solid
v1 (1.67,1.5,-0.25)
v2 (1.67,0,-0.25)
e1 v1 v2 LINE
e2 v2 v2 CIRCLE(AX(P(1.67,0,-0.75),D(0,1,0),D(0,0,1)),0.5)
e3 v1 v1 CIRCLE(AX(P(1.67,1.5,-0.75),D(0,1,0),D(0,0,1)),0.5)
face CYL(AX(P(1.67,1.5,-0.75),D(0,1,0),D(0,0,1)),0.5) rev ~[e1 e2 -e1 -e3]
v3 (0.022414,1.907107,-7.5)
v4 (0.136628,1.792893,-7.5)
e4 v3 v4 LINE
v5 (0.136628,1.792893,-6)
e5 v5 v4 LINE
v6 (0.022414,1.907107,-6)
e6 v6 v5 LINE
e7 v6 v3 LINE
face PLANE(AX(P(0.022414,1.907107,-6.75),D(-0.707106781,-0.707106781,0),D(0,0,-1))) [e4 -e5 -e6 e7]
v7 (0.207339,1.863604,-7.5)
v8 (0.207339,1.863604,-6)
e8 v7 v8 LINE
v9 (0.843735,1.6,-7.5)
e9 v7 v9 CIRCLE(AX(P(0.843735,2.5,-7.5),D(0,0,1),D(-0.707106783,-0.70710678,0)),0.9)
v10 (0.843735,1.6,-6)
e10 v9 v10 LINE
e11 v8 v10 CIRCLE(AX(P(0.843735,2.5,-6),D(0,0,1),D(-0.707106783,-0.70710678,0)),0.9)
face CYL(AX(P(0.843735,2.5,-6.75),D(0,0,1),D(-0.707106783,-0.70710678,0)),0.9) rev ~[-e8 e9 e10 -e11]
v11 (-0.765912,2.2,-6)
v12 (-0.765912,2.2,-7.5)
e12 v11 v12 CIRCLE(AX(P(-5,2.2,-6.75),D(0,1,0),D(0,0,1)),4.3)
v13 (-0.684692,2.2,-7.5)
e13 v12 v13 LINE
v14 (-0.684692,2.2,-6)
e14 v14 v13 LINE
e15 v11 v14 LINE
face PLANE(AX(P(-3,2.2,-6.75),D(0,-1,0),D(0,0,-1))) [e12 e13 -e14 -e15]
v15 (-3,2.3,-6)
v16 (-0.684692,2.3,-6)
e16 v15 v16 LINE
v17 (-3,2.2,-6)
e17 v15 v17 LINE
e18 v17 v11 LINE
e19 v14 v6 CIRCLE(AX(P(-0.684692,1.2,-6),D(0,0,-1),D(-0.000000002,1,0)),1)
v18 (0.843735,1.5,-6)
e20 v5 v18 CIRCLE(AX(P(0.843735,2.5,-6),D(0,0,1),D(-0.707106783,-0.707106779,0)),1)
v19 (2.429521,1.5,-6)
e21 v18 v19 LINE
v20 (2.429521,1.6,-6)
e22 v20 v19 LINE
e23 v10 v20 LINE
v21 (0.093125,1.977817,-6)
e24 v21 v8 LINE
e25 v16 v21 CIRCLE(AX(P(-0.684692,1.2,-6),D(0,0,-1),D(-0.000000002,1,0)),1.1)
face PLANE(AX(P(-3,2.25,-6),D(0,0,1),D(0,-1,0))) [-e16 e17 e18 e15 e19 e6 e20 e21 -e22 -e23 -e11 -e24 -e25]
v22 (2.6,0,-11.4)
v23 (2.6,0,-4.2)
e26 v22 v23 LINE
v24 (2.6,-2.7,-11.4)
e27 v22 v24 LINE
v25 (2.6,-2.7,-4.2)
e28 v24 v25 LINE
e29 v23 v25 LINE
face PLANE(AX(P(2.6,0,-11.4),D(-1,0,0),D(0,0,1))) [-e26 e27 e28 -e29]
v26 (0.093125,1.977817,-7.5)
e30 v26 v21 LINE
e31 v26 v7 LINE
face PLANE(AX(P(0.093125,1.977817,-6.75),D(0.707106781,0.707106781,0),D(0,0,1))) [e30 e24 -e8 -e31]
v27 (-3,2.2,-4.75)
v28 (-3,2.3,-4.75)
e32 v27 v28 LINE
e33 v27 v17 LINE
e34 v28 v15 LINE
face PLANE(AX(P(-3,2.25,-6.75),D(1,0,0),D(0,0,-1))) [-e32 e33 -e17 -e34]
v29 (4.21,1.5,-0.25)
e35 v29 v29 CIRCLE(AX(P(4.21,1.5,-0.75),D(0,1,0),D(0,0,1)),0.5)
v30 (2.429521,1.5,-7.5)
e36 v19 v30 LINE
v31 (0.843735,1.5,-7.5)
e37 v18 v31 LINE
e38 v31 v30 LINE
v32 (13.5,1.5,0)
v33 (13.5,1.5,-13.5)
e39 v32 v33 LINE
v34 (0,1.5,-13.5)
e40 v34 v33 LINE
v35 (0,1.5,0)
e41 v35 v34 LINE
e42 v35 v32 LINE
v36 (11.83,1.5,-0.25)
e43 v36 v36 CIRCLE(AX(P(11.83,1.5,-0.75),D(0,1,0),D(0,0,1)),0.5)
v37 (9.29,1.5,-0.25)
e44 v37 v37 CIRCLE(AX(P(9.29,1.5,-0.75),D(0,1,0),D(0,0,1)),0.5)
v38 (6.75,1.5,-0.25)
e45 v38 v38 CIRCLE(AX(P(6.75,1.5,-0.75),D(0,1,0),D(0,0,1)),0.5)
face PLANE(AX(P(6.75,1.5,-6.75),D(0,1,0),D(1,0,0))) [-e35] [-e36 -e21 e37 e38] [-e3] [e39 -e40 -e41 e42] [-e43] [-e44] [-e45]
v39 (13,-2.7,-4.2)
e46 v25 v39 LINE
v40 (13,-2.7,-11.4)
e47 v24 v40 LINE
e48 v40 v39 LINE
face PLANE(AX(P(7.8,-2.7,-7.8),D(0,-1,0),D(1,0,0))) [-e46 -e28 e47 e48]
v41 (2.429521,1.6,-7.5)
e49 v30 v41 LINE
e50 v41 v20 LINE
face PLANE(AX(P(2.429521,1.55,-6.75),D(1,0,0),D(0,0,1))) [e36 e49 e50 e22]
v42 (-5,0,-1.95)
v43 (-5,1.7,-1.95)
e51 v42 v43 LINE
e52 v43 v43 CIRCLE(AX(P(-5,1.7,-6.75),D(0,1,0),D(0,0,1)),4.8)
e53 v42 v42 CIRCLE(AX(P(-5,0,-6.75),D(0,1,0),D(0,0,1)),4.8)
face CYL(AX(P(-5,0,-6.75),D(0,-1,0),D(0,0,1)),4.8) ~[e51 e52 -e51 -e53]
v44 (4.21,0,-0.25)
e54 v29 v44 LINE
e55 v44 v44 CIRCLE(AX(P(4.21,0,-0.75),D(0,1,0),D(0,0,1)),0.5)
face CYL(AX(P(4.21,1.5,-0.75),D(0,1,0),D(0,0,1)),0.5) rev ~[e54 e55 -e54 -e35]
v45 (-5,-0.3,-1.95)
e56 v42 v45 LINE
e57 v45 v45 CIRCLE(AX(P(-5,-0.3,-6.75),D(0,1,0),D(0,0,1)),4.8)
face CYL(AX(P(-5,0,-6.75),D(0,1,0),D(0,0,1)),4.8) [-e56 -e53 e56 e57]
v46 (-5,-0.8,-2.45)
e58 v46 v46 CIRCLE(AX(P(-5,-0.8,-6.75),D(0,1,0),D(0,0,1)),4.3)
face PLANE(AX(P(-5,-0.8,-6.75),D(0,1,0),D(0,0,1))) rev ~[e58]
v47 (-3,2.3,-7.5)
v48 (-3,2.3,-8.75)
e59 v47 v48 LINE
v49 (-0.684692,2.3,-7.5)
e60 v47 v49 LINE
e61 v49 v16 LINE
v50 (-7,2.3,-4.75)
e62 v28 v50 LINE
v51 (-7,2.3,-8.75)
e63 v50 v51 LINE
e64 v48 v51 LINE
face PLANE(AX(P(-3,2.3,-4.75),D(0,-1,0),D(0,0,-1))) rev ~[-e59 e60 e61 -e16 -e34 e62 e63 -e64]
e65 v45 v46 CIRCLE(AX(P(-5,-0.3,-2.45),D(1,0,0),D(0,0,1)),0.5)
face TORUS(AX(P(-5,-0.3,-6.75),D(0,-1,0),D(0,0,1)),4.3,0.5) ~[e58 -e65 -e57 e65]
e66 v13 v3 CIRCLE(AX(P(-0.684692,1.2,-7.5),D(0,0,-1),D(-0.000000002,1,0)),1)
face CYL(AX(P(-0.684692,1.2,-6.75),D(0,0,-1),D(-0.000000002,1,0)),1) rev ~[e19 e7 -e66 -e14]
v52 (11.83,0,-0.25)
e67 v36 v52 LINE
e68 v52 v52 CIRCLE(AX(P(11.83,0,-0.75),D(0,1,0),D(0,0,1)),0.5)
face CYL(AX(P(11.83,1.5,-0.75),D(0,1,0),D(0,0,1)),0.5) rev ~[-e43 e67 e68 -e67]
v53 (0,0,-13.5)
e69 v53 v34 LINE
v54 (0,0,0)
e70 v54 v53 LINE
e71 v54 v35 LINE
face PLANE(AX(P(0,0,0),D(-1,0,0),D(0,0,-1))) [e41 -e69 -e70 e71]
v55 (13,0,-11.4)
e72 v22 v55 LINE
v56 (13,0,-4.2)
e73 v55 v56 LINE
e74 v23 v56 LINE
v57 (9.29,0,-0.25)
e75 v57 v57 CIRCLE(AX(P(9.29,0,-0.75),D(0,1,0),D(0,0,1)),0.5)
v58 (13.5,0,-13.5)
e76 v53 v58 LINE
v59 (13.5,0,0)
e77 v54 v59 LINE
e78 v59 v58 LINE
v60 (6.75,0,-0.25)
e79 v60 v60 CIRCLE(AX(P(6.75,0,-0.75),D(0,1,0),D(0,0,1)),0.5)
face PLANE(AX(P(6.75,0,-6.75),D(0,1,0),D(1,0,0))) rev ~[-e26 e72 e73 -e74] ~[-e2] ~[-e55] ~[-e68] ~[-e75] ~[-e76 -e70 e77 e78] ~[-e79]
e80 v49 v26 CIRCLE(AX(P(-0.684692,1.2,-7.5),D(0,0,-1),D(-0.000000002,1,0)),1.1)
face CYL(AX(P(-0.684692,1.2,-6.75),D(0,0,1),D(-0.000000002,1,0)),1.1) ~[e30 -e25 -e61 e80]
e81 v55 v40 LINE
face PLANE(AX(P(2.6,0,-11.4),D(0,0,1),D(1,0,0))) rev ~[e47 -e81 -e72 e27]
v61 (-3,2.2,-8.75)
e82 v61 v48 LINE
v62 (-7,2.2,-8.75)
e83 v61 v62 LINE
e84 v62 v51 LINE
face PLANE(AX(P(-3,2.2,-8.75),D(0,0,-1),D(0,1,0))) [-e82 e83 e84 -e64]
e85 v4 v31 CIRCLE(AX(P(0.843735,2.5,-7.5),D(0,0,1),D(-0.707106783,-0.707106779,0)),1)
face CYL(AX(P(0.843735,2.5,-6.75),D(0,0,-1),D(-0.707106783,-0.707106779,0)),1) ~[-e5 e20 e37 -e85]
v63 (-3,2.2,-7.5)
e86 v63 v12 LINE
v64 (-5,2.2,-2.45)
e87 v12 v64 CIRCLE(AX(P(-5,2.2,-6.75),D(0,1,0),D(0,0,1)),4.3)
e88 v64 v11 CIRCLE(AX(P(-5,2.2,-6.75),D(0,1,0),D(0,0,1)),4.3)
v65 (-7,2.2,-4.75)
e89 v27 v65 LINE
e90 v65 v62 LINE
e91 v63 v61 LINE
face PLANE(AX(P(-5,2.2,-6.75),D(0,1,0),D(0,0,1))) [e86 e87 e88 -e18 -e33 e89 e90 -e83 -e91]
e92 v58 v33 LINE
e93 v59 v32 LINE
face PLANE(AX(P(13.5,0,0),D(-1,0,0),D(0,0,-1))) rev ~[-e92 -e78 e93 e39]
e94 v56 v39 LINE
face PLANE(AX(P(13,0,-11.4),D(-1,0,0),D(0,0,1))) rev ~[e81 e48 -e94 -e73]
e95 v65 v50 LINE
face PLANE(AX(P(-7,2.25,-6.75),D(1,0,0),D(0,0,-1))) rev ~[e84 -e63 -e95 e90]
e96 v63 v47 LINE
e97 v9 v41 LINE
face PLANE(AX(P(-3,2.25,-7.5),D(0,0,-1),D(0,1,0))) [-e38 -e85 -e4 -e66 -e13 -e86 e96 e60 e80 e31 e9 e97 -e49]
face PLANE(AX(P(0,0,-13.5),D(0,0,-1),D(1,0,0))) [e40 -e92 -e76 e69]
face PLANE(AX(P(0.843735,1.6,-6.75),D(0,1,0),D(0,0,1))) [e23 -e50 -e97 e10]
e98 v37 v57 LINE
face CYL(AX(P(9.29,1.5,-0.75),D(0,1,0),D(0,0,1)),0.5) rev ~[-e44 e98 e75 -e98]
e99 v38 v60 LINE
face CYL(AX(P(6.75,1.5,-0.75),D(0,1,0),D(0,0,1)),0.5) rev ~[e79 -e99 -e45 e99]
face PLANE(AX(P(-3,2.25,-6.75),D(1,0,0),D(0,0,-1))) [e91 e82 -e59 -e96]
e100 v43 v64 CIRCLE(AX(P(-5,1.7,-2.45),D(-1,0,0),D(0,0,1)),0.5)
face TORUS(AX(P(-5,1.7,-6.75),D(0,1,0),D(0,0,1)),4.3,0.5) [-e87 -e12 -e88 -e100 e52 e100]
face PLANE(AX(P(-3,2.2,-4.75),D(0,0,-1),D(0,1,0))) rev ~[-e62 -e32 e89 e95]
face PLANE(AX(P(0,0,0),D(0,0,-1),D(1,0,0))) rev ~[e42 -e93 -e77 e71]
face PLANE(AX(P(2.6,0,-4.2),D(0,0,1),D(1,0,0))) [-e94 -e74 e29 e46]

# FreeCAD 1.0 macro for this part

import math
import FreeCAD as App
import Part
import Sketcher

V = App.Vector
Q = App.Units.Quantity


def edges_at(feature, points):
    """Names of the edges that pass closest to the given points."""
    edges = feature.Shape.Edges
    near = lambda p: min(range(len(edges)), key=lambda i: edges[i].distToShape(Part.Vertex(*p))[0])
    return sorted({f"Edge{near(p) + 1}" for p in points})

doc = App.newDocument("Part")
params = doc.addObject("Spreadsheet::Sheet", "Params")
for row, (alias, value) in enumerate([
    ("sketch1_width", "13.5 mm"),
    ("pad1_length", "1.5 mm"),
    ("sketch2_diameter", "1 mm"),
    ("pocket1_length", "1.5 mm"),
    ("sketch3_width", "10.4 mm"),
    ("sketch3_height", "7.2 mm"),
    ("pad2_length", "2.7 mm"),
    ("sketch4_diameter", "9.6 mm"),
    ("pad3_length", "0.8 mm"),
    ("sketch5_diameter", "9.6 mm"),
    ("pad4_length", "2.2 mm"),
    ("fillet_radius", "0.5 mm"),
    ("sketch6_width", "0.1 mm"),
    ("sketch6_height", "1.5 mm"),
    ("sketch7_radius", "1 mm"),
    ("sketch8_height", "4 mm"),
    ("sketch8_width", "0.1 mm"),
    ("pad5_length", "4 mm"),
], start=1):
    params.set(f"A{row}", alias)
    params.set(f"B{row}", "=" + value)
    params.setAlias(f"B{row}", alias)

body = doc.addObject("PartDesign::Body", "Body")

# Sketch on XZ plane
sketch1 = body.newObject("Sketcher::SketchObject", "Sketch")
sketch1.AttachmentSupport = (doc.getObject("XZ_Plane"), [""])
sketch1.MapMode = "FlatFace"
sketch1.addGeometry([
    Part.LineSegment(V(0, -14, 0), V(0, 0, 0)),
    Part.LineSegment(V(0, 0, 0), V(14, 0, 0)),
    Part.LineSegment(V(14, 0, 0), V(14, -14, 0)),
    Part.LineSegment(V(14, -14, 0), V(0, -14, 0)),
], False)
sketch1.addConstraint([
    Sketcher.Constraint("Coincident", 0, 2, 1, 1),
    Sketcher.Constraint("Coincident", 1, 2, 2, 1),
    Sketcher.Constraint("Coincident", 2, 2, 3, 1),
    Sketcher.Constraint("Coincident", 3, 2, 0, 1),
    Sketcher.Constraint("Vertical", 0),
    Sketcher.Constraint("Horizontal", 1),
    Sketcher.Constraint("Vertical", 2),
    Sketcher.Constraint("Horizontal", 3),
    Sketcher.Constraint("Coincident", 0, 2, -1, 1),
    Sketcher.Constraint("Equal", 3, 0),
    Sketcher.Constraint("DistanceX", 1, 1, 1, 2, Q("13.5 mm")),
])
sketch1.setExpression("Constraints[10]", "Params.sketch1_width")
pad1 = body.newObject("PartDesign::Pad", "Pad")
pad1.Profile = sketch1
pad1.setExpression("Length", "Params.pad1_length")
pad1.Reversed = True

# Sketch on XZ plane
sketch2 = body.newObject("Sketcher::SketchObject", "Sketch001")
sketch2.AttachmentSupport = (doc.getObject("XZ_Plane"), [""])
sketch2.MapMode = "FlatFace"
sketch2.AttachmentOffset = App.Placement(V(0, 0, -1.5), App.Rotation())
sketch2.addGeometry([
    Part.Circle(V(11.8, -0.8, 0), V(0, 0, 1), 0.5),  # 0
    Part.Circle(V(9.3, -0.8, 0), V(0, 0, 1), 0.5),  # 1
    Part.Circle(V(6.8, -0.8, 0), V(0, 0, 1), 0.5),  # 2
    Part.Circle(V(4.2, -0.8, 0), V(0, 0, 1), 0.5),  # 3
    Part.Circle(V(1.7, -0.8, 0), V(0, 0, 1), 0.5),  # 4
], False)
sketch2.addConstraint([
    Sketcher.Constraint("Equal", 0, 1),
    Sketcher.Constraint("Equal", 1, 2),
    Sketcher.Constraint("Equal", 2, 3),
    Sketcher.Constraint("Equal", 3, 4),
    Sketcher.Constraint("Horizontal", 0, 3, 1, 3),
    Sketcher.Constraint("Horizontal", 1, 3, 2, 3),
    Sketcher.Constraint("Horizontal", 2, 3, 3, 3),
    Sketcher.Constraint("Horizontal", 3, 3, 4, 3),
    Sketcher.Constraint("Diameter", 0, Q("1 mm")),
    Sketcher.Constraint("DistanceX", -1, 1, 0, 3, Q("11.83 mm")),
    Sketcher.Constraint("DistanceY", 0, 3, -1, 1, Q("0.75 mm")),
    Sketcher.Constraint("DistanceX", -1, 1, 1, 3, Q("9.29 mm")),
    Sketcher.Constraint("DistanceX", -1, 1, 2, 3, Q("6.75 mm")),
    Sketcher.Constraint("DistanceX", -1, 1, 3, 3, Q("4.21 mm")),
    Sketcher.Constraint("DistanceX", -1, 1, 4, 3, Q("1.67 mm")),
])
sketch2.setExpression("Constraints[8]", "Params.sketch2_diameter")
pocket1 = body.newObject("PartDesign::Pocket", "Pocket")
pocket1.Profile = sketch2
pocket1.setExpression("Length", "Params.pocket1_length")
pocket1.Reversed = True

# Sketch on XZ plane
sketch3 = body.newObject("Sketcher::SketchObject", "Sketch002")
sketch3.AttachmentSupport = (doc.getObject("XZ_Plane"), [""])
sketch3.MapMode = "FlatFace"
sketch3.addGeometry([
    Part.LineSegment(V(3, -4, 0), V(3, -11, 0)),
    Part.LineSegment(V(3, -11, 0), V(13, -11, 0)),
    Part.LineSegment(V(13, -11, 0), V(13, -4, 0)),
    Part.LineSegment(V(13, -4, 0), V(3, -4, 0)),
], False)
sketch3.addConstraint([
    Sketcher.Constraint("Coincident", 0, 2, 1, 1),
    Sketcher.Constraint("Coincident", 1, 2, 2, 1),
    Sketcher.Constraint("Coincident", 2, 2, 3, 1),
    Sketcher.Constraint("Coincident", 3, 2, 0, 1),
    Sketcher.Constraint("Vertical", 0),
    Sketcher.Constraint("Horizontal", 1),
    Sketcher.Constraint("Vertical", 2),
    Sketcher.Constraint("Horizontal", 3),
    Sketcher.Constraint("DistanceX", 1, 1, 1, 2, Q("10.4 mm")),
    Sketcher.Constraint("DistanceY", 0, 2, 0, 1, Q("7.2 mm")),
    Sketcher.Constraint("DistanceX", -1, 1, 1, 2, Q("13 mm")),
    Sketcher.Constraint("DistanceY", 0, 2, -1, 1, Q("11.4 mm")),
])
sketch3.setExpression("Constraints[8]", "Params.sketch3_width")
sketch3.setExpression("Constraints[9]", "Params.sketch3_height")
pad2 = body.newObject("PartDesign::Pad", "Pad001")
pad2.Profile = sketch3
pad2.setExpression("Length", "Params.pad2_length")
body2 = doc.addObject("PartDesign::Body", "Body001")

# Sketch on XZ plane
sketch4 = body2.newObject("Sketcher::SketchObject", "Sketch003")
sketch4.AttachmentSupport = (doc.getObject("XZ_Plane001"), [""])
sketch4.MapMode = "FlatFace"
sketch4.addGeometry(Part.Circle(V(-5, -6.8, 0), V(0, 0, 1), 4.8), False)
sketch4.addConstraint([
    Sketcher.Constraint("Diameter", 0, Q("9.6 mm")),
    Sketcher.Constraint("DistanceX", 0, 3, -1, 1, Q("5 mm")),
    Sketcher.Constraint("DistanceY", 0, 3, -1, 1, Q("6.75 mm")),
])
sketch4.setExpression("Constraints[0]", "Params.sketch4_diameter")
pad3 = body2.newObject("PartDesign::Pad", "Pad002")
pad3.Profile = sketch4
pad3.setExpression("Length", "Params.pad3_length")

# Sketch on XZ plane
sketch5 = body2.newObject("Sketcher::SketchObject", "Sketch004")
sketch5.AttachmentSupport = (doc.getObject("XZ_Plane001"), [""])
sketch5.MapMode = "FlatFace"
sketch5.addGeometry(Part.Circle(V(-5, -6.8, 0), V(0, 0, 1), 4.8), False)
sketch5.addConstraint([
    Sketcher.Constraint("Diameter", 0, Q("9.6 mm")),
    Sketcher.Constraint("DistanceX", 0, 3, -1, 1, Q("5 mm")),
    Sketcher.Constraint("DistanceY", 0, 3, -1, 1, Q("6.75 mm")),
])
sketch5.setExpression("Constraints[0]", "Params.sketch5_diameter")
pad4 = body2.newObject("PartDesign::Pad", "Pad003")
pad4.Profile = sketch5
pad4.setExpression("Length", "Params.pad4_length")
pad4.Reversed = True
doc.recompute()

fillet = body2.newObject("PartDesign::Fillet", "Fillet")
fillet.Base = (pad4, edges_at(pad4, [(-5, -0.8, -11.55), (-5, 2.2, -11.55)]))
fillet.setExpression("Radius", "Params.fillet_radius")
body.AllowCompound = True
doc.recompute()

boolean = body.newObject("PartDesign::Boolean", "Boolean")
boolean.Type = "Fuse"
boolean.addObjects([body2])

# Sketch on YZ plane
sketch6 = body.newObject("Sketcher::SketchObject", "Sketch005")
sketch6.AttachmentSupport = (doc.getObject("YZ_Plane"), [""])
sketch6.MapMode = "FlatFace"
sketch6.AttachmentOffset = App.Placement(V(0, 0, -3), App.Rotation())
sketch6.addGeometry([
    Part.LineSegment(V(2.3, -6, 0), V(2.2, -6, 0)),
    Part.LineSegment(V(2.2, -6, 0), V(2.2, -7.5, 0)),
    Part.LineSegment(V(2.2, -7.5, 0), V(2.3, -7.5, 0)),
    Part.LineSegment(V(2.3, -7.5, 0), V(2.3, -6, 0)),
], False)
sketch6.addConstraint([
    Sketcher.Constraint("Coincident", 0, 2, 1, 1),
    Sketcher.Constraint("Coincident", 1, 2, 2, 1),
    Sketcher.Constraint("Coincident", 2, 2, 3, 1),
    Sketcher.Constraint("Coincident", 3, 2, 0, 1),
    Sketcher.Constraint("Horizontal", 0),
    Sketcher.Constraint("Vertical", 1),
    Sketcher.Constraint("Horizontal", 2),
    Sketcher.Constraint("Vertical", 3),
    Sketcher.Constraint("DistanceX", 0, 2, 0, 1, Q("0.1 mm")),
    Sketcher.Constraint("DistanceY", 1, 2, 1, 1, Q("1.5 mm")),
    Sketcher.Constraint("DistanceY", 0, 2, -1, 1, Q("6 mm")),
    Sketcher.Constraint("DistanceX", -1, 1, 0, 2, Q("2.2 mm")),
])
sketch6.setExpression("Constraints[8]", "Params.sketch6_width")
sketch6.setExpression("Constraints[9]", "Params.sketch6_height")

# Sketch on XY plane
sketch7 = body.newObject("Sketcher::SketchObject", "Sketch006")
sketch7.AttachmentSupport = (doc.getObject("XY_Plane"), [""])
sketch7.MapMode = "FlatFace"
sketch7.AttachmentOffset = App.Placement(V(0, 0, -6.75), App.Rotation())
sketch7.addGeometry([
    Part.LineSegment(V(-3, 2.2, 0), V(-0.68, 2.2, 0)),  # 0
    Part.ArcOfCircle(Part.Circle(V(-0.68, 1.2, 0), V(0, 0, 1), 1), math.radians(45), math.radians(90)),  # 1
    Part.LineSegment(V(0.02, 1.91, 0), V(0.14, 1.79, 0)),  # 2
    Part.ArcOfCircle(Part.Circle(V(0.84, 2.5, 0), V(0, 0, 1), 1), math.radians(-135), math.radians(-90)),  # 3
    Part.LineSegment(V(0.84, 1.5, 0), V(2.43, 1.5, 0)),  # 4
], False)
sketch7.addConstraint([
    Sketcher.Constraint("Tangent", 0, 2, 1, 2),
    Sketcher.Constraint("Tangent", 1, 1, 2, 1),
    Sketcher.Constraint("Tangent", 2, 2, 3, 1),
    Sketcher.Constraint("Tangent", 3, 2, 4, 1),
    Sketcher.Constraint("Horizontal", 0),
    Sketcher.Constraint("Horizontal", 4),
    Sketcher.Constraint("Equal", 1, 3),
    Sketcher.Constraint("Radius", 1, Q("1 mm")),
    Sketcher.Constraint("Angle", 2, Q("-45 deg")),
    Sketcher.Constraint("DistanceX", 0, 1, -1, 1, Q("3 mm")),
    Sketcher.Constraint("DistanceY", -1, 1, 1, 3, Q("1.2 mm")),
    Sketcher.Constraint("DistanceY", -1, 1, 3, 3, Q("2.5 mm")),
    Sketcher.Constraint("DistanceX", 0, 1, 0, 2, Q("2.315308 mm")),
    Sketcher.Constraint("DistanceX", 4, 1, 4, 2, Q("1.585786 mm")),
])
sketch7.setExpression("Constraints[7]", "Params.sketch7_radius")
doc.recompute()

additivepipe = body.newObject("PartDesign::AdditivePipe", "AdditivePipe")
additivepipe.Profile = sketch6
additivepipe.Spine = (sketch7, ["Edge1", "Edge2", "Edge3", "Edge4", "Edge5"])

# Sketch on YZ plane
sketch8 = body.newObject("Sketcher::SketchObject", "Sketch007")
sketch8.AttachmentSupport = (doc.getObject("YZ_Plane"), [""])
sketch8.MapMode = "FlatFace"
sketch8.AttachmentOffset = App.Placement(V(0, 0, -3), App.Rotation())
sketch8.addGeometry([
    Part.LineSegment(V(2.3, -4.75, 0), V(2.2, -4.75, 0)),
    Part.LineSegment(V(2.2, -4.75, 0), V(2.2, -8.75, 0)),
    Part.LineSegment(V(2.2, -8.75, 0), V(2.3, -8.75, 0)),
    Part.LineSegment(V(2.3, -8.75, 0), V(2.3, -4.75, 0)),
], False)
sketch8.addConstraint([
    Sketcher.Constraint("Coincident", 0, 2, 1, 1),
    Sketcher.Constraint("Coincident", 1, 2, 2, 1),
    Sketcher.Constraint("Coincident", 2, 2, 3, 1),
    Sketcher.Constraint("Coincident", 3, 2, 0, 1),
    Sketcher.Constraint("Horizontal", 0),
    Sketcher.Constraint("Vertical", 1),
    Sketcher.Constraint("Horizontal", 2),
    Sketcher.Constraint("Vertical", 3),
    Sketcher.Constraint("DistanceY", 1, 2, 1, 1, Q("4 mm")),
    Sketcher.Constraint("DistanceX", 0, 2, 0, 1, Q("0.1 mm")),
    Sketcher.Constraint("DistanceX", -1, 1, 0, 2, Q("2.2 mm")),
    Sketcher.Constraint("DistanceY", 0, 2, -1, 1, Q("4.75 mm")),
])
sketch8.setExpression("Constraints[8]", "Params.sketch8_height")
sketch8.setExpression("Constraints[9]", "Params.sketch8_width")
pad5 = body.newObject("PartDesign::Pad", "Pad004")
pad5.Profile = sketch8
pad5.setExpression("Length", "Params.pad5_length")
pad5.Reversed = True

doc.recompute()
